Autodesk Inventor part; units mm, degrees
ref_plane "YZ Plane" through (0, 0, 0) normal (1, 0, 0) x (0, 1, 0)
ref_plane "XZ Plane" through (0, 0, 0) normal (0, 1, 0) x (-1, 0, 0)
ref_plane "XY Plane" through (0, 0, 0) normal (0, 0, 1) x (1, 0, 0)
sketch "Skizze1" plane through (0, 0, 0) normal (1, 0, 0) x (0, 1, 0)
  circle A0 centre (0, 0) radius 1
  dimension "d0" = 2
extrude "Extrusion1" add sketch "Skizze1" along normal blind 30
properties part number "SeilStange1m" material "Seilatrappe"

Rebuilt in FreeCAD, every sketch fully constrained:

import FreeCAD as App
import Part
import Sketcher

V = App.Vector
Q = App.Units.Quantity

doc = App.newDocument("Part")
params = doc.addObject("Spreadsheet::Sheet", "Params")
for row, (alias, value) in enumerate([
    ("sketch1_diameter", "2 mm"),
    ("pad1_length", "30 mm"),
], start=1):
    params.set(f"A{row}", alias)
    params.set(f"B{row}", "=" + value)
    params.setAlias(f"B{row}", alias)

body = doc.addObject("PartDesign::Body", "Body")

# Sketch on YZ plane
sketch1 = body.newObject("Sketcher::SketchObject", "Sketch")
sketch1.AttachmentSupport = (doc.getObject("YZ_Plane"), [""])
sketch1.MapMode = "FlatFace"
sketch1.addGeometry(Part.Circle(V(0, 0, 0), V(0, 0, 1), 1), False)
sketch1.addConstraint([
    Sketcher.Constraint("Coincident", 0, 3, -1, 1),
    Sketcher.Constraint("Diameter", 0, Q("2 mm")),
])
sketch1.setExpression("Constraints[1]", "Params.sketch1_diameter")
pad1 = body.newObject("PartDesign::Pad", "Pad")
pad1.Profile = sketch1
pad1.setExpression("Length", "Params.pad1_length")

doc.recompute()
